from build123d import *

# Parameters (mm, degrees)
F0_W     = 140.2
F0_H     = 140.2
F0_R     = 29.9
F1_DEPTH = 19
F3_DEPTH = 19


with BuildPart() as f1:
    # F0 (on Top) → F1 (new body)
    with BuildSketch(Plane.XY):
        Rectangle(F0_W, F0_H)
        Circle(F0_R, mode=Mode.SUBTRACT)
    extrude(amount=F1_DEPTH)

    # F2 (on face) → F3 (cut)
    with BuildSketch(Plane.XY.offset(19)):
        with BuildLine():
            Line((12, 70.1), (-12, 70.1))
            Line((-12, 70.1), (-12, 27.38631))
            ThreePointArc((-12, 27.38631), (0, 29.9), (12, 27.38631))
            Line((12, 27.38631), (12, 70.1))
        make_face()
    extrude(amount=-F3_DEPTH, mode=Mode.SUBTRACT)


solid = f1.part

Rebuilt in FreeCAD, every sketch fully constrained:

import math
import FreeCAD as App
import Part
import Sketcher
from FreeCAD import Vector
Q = App.Units.Quantity


def add_polygon(sketch, points):
    """Adds a closed chain of lines whose ends are joined by coincident constraints."""
    first, n = sketch.GeometryCount, len(points)
    for a, b in zip(points, points[1:] + points[:1]):
        sketch.addGeometry(Part.LineSegment(App.Vector(*a, 0), App.Vector(*b, 0)), False)
    for i in range(n):
        sketch.addConstraint(Sketcher.Constraint("Coincident", first + i, 2, first + (i + 1) % n, 1))

doc = App.newDocument("Part")
body = doc.addObject("PartDesign::Body", "Body")

sketch1 = body.newObject("Sketcher::SketchObject", "Sketch")
sketch1.AttachmentSupport = (doc.getObject("XY_Plane"), [""])
sketch1.MapMode = "FlatFace"
add_polygon(sketch1, [(-70.1, 70.1), (-70.1, -70.1), (70.1, -70.1), (70.1, 70.1)])
sketch1.addGeometry(Part.Circle(Vector(0, 0, 0), Vector(0, 0, 1), 29.9), False)
sketch1.addConstraint([
    Sketcher.Constraint("Vertical", 0),
    Sketcher.Constraint("Horizontal", 1),
    Sketcher.Constraint("Vertical", 2),
    Sketcher.Constraint("Horizontal", 3),
    Sketcher.Constraint("Coincident", 4, 3, -1, 1),
    Sketcher.Constraint("Symmetric", 0, 2, 2, 2, -1, 1),
    Sketcher.Constraint("Equal", 3, 0),
    Sketcher.Constraint("Diameter", 4, Q("59.8 mm")),
    Sketcher.Constraint("DistanceX", 1, 1, 1, 2, Q("140.2 mm")),
])
pad1 = body.newObject("PartDesign::Pad", "Pad")
pad1.Profile = sketch1
pad1.Length = 19

sketch2 = body.newObject("Sketcher::SketchObject", "Sketch001")
sketch2.AttachmentSupport = (doc.getObject("XY_Plane"), [""])
sketch2.MapMode = "FlatFace"
sketch2.AttachmentOffset = App.Placement(Vector(0, 0, 19), App.Rotation())
sketch2.addGeometry([
    Part.LineSegment(Vector(12, 70.1, 0), Vector(-12, 70.1, 0)),
    Part.LineSegment(Vector(-12, 70.1, 0), Vector(-12, 27.38631, 0)),
    Part.ArcOfCircle(Part.Circle(Vector(0, 0.000005, 0), Vector(0, 0, 1), 29.899995), math.radians(66.338159), math.radians(113.661841)),
    Part.LineSegment(Vector(12, 27.38631, 0), Vector(12, 70.1, 0)),
], False)
sketch2.addConstraint([
    Sketcher.Constraint("Coincident", 0, 2, 1, 1),
    Sketcher.Constraint("Coincident", 1, 2, 2, 2),
    Sketcher.Constraint("Coincident", 2, 1, 3, 1),
    Sketcher.Constraint("Coincident", 3, 2, 0, 1),
    Sketcher.Constraint("Horizontal", 0),
    Sketcher.Constraint("Vertical", 1),
    Sketcher.Constraint("Vertical", 3),
    Sketcher.Constraint("Coincident", 2, 3, -1, 1),
    Sketcher.Constraint("Horizontal", 1, 2, 2, 1),
    Sketcher.Constraint("DistanceX", 0, 2, 0, 1, Q("24 mm")),
    Sketcher.Constraint("DistanceY", -1, 1, 0, 2, Q("70.1 mm")),
    Sketcher.Constraint("Radius", 2, Q("29.899995 mm")),
])
pocket1 = body.newObject("PartDesign::Pocket", "Pocket")
pocket1.Profile = sketch2
pocket1.Length = 19

doc.recompute()
